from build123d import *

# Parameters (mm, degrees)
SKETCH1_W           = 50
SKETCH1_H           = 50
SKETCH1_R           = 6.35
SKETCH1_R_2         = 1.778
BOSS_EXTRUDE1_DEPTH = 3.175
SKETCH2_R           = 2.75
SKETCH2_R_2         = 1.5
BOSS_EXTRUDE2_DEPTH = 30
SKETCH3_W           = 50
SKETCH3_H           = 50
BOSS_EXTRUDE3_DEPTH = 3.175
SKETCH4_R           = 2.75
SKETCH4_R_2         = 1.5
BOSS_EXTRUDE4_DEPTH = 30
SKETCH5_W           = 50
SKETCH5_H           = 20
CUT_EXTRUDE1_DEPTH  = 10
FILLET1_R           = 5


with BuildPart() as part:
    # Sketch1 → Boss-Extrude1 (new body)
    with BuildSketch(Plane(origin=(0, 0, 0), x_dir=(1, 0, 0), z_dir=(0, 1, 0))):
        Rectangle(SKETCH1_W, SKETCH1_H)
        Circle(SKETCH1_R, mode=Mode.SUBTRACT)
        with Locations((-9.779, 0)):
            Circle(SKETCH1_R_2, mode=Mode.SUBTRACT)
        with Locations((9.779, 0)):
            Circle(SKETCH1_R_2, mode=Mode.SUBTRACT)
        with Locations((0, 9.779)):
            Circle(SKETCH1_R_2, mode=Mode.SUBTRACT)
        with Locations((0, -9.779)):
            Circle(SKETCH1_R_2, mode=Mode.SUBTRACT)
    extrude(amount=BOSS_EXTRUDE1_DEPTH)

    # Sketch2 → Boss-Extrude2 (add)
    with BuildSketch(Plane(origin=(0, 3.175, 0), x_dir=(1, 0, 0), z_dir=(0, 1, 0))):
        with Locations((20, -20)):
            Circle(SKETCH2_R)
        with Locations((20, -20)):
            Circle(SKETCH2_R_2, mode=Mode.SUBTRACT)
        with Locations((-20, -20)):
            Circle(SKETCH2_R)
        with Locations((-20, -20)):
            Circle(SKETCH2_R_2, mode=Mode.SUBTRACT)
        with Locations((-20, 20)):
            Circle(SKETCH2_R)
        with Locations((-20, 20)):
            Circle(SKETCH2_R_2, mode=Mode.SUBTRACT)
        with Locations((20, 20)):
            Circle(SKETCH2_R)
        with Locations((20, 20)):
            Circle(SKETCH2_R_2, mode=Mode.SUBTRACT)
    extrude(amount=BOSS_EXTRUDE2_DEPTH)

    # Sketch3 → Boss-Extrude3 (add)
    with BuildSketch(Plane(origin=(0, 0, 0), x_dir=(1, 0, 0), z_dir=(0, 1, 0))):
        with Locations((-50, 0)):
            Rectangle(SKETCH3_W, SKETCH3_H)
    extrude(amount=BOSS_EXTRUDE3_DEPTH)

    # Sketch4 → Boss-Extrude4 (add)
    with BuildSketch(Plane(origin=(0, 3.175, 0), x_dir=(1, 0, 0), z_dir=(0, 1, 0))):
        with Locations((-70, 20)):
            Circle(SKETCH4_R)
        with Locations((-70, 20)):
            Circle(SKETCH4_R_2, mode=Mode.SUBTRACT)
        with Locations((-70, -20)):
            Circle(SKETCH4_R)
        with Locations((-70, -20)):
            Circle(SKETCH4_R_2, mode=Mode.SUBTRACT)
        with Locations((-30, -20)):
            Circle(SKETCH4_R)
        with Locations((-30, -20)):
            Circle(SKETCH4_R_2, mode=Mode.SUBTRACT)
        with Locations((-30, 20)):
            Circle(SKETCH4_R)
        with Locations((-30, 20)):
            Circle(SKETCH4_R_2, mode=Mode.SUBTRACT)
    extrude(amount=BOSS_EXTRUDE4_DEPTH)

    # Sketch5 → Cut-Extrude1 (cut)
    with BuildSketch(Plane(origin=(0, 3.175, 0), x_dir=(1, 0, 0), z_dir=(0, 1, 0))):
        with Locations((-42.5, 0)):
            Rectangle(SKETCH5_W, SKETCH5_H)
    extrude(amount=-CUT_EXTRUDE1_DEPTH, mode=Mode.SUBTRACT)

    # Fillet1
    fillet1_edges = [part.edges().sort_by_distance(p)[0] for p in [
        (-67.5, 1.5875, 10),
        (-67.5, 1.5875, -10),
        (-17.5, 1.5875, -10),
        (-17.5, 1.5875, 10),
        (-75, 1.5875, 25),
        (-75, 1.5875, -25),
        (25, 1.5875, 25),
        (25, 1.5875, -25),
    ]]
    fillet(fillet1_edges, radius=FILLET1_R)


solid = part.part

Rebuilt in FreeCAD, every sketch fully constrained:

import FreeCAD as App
import Part
import Sketcher
from FreeCAD import Vector
Q = App.Units.Quantity


def edges_at(feature, points):
    """Names of the edges that pass closest to the given points."""
    edges = feature.Shape.Edges
    near = lambda p: min(range(len(edges)), key=lambda i: edges[i].distToShape(Part.Vertex(*p))[0])
    return sorted({f"Edge{near(p) + 1}" for p in points})


def add_polygon(sketch, points):
    """Adds a closed chain of lines whose ends are joined by coincident constraints."""
    first, n = sketch.GeometryCount, len(points)
    for a, b in zip(points, points[1:] + points[:1]):
        sketch.addGeometry(Part.LineSegment(App.Vector(*a, 0), App.Vector(*b, 0)), False)
    for i in range(n):
        sketch.addConstraint(Sketcher.Constraint("Coincident", first + i, 2, first + (i + 1) % n, 1))

doc = App.newDocument("Part")
body = doc.addObject("PartDesign::Body", "Body")

# Sketch on XZ plane
sketch1 = body.newObject("Sketcher::SketchObject", "Sketch")
sketch1.AttachmentSupport = (doc.getObject("XZ_Plane"), [""])
sketch1.MapMode = "FlatFace"
add_polygon(sketch1, [(-25, -25), (-25, 25), (25, 25), (25, -25)])  # lines 0-3
sketch1.addGeometry(Part.Circle(Vector(0, 9.8, 0), Vector(0, 0, 1), 1.8), False)  # 4
sketch1.addGeometry(Part.Circle(Vector(-9.8, 0, 0), Vector(0, 0, 1), 1.8), False)  # 5
sketch1.addGeometry(Part.Circle(Vector(0, 0, 0), Vector(0, 0, 1), 6.3), False)  # 6
sketch1.addGeometry(Part.Circle(Vector(9.8, 0, 0), Vector(0, 0, 1), 1.8), False)  # 7
sketch1.addGeometry(Part.Circle(Vector(0, -9.8, 0), Vector(0, 0, 1), 1.8), False)  # 8
sketch1.addConstraint([
    Sketcher.Constraint("Vertical", 0),
    Sketcher.Constraint("Horizontal", 1),
    Sketcher.Constraint("Vertical", 2),
    Sketcher.Constraint("Horizontal", 3),
    Sketcher.Constraint("Coincident", 6, 3, -1, 1),
    Sketcher.Constraint("Equal", 4, 5),
    Sketcher.Constraint("Equal", 5, 7),
    Sketcher.Constraint("Equal", 7, 8),
    Sketcher.Constraint("Symmetric", 5, 3, 7, 3, -1, 1),
    Sketcher.Constraint("Symmetric", 4, 3, 8, 3, -1, 1),
    Sketcher.Constraint("Symmetric", 0, 2, 2, 2, -1, 1),
    Sketcher.Constraint("PointOnObject", 4, 3, -2),
    Sketcher.Constraint("PointOnObject", 5, 3, -1),
    Sketcher.Constraint("Equal", 3, 0),
    Sketcher.Constraint("Diameter", 6, Q("12.7 mm")),
    Sketcher.Constraint("DistanceX", 1, 1, 1, 2, Q("50 mm")),
    Sketcher.Constraint("Diameter", 4, Q("3.556 mm")),
    Sketcher.Constraint("DistanceY", -1, 1, 4, 3, Q("9.779 mm")),
    Sketcher.Constraint("DistanceX", 5, 3, -1, 1, Q("9.779 mm")),
])
pad1 = body.newObject("PartDesign::Pad", "Pad")
pad1.Profile = sketch1
pad1.Length = 3.175
pad1.Reversed = True

# Sketch on XZ plane
sketch2 = body.newObject("Sketcher::SketchObject", "Sketch001")
sketch2.AttachmentSupport = (doc.getObject("XZ_Plane"), [""])
sketch2.MapMode = "FlatFace"
sketch2.AttachmentOffset = App.Placement(Vector(0, 0, -3.175), App.Rotation())
sketch2.addGeometry([
    Part.Circle(Vector(20, 20, 0), Vector(0, 0, 1), 2.8),  # 0
    Part.Circle(Vector(20, 20, 0), Vector(0, 0, 1), 1.5),  # 1
    Part.Circle(Vector(-20, 20, 0), Vector(0, 0, 1), 2.8),  # 2
    Part.Circle(Vector(-20, 20, 0), Vector(0, 0, 1), 1.5),  # 3
    Part.Circle(Vector(-20, -20, 0), Vector(0, 0, 1), 2.8),  # 4
    Part.Circle(Vector(-20, -20, 0), Vector(0, 0, 1), 1.5),  # 5
    Part.Circle(Vector(20, -20, 0), Vector(0, 0, 1), 2.8),  # 6
    Part.Circle(Vector(20, -20, 0), Vector(0, 0, 1), 1.5),  # 7
], False)
sketch2.addConstraint([
    Sketcher.Constraint("Coincident", 1, 3, 0, 3),
    Sketcher.Constraint("Coincident", 3, 3, 2, 3),
    Sketcher.Constraint("Coincident", 5, 3, 4, 3),
    Sketcher.Constraint("Coincident", 7, 3, 6, 3),
    Sketcher.Constraint("Equal", 0, 2),
    Sketcher.Constraint("Equal", 1, 3),
    Sketcher.Constraint("Equal", 2, 4),
    Sketcher.Constraint("Equal", 3, 5),
    Sketcher.Constraint("Equal", 4, 6),
    Sketcher.Constraint("Equal", 5, 7),
    Sketcher.Constraint("Symmetric", 0, 3, 4, 3, -1, 1),
    Sketcher.Constraint("Symmetric", 2, 3, 6, 3, -1, 1),
    Sketcher.Constraint("Symmetric", 0, 3, 2, 3, -2),
    Sketcher.Constraint("Diameter", 1, Q("3 mm")),
    Sketcher.Constraint("Diameter", 0, Q("5.5 mm")),
    Sketcher.Constraint("DistanceX", -1, 1, 0, 3, Q("20 mm")),
    Sketcher.Constraint("DistanceY", -1, 1, 0, 3, Q("20 mm")),
])
pad2 = body.newObject("PartDesign::Pad", "Pad001")
pad2.Profile = sketch2
pad2.Length = 30
pad2.Reversed = True

# Sketch on XZ plane
sketch3 = body.newObject("Sketcher::SketchObject", "Sketch002")
sketch3.AttachmentSupport = (doc.getObject("XZ_Plane"), [""])
sketch3.MapMode = "FlatFace"
add_polygon(sketch3, [(-75, -25), (-75, 25), (-25, 25), (-25, -25)])  # lines 0-3
sketch3.addConstraint([
    Sketcher.Constraint("Vertical", 0),
    Sketcher.Constraint("Horizontal", 1),
    Sketcher.Constraint("Vertical", 2),
    Sketcher.Constraint("Horizontal", 3),
    Sketcher.Constraint("Equal", 3, 0),
    Sketcher.Constraint("DistanceX", 1, 1, 1, 2, Q("50 mm")),
    Sketcher.Constraint("DistanceX", 0, 2, -1, 1, Q("75 mm")),
    Sketcher.Constraint("DistanceY", -1, 1, 0, 2, Q("25 mm")),
])
pad3 = body.newObject("PartDesign::Pad", "Pad002")
pad3.Profile = sketch3
pad3.Length = 3.175
pad3.Reversed = True

# Sketch on XZ plane
sketch4 = body.newObject("Sketcher::SketchObject", "Sketch003")
sketch4.AttachmentSupport = (doc.getObject("XZ_Plane"), [""])
sketch4.MapMode = "FlatFace"
sketch4.AttachmentOffset = App.Placement(Vector(0, 0, -3.175), App.Rotation())
sketch4.addGeometry([
    Part.Circle(Vector(-70, -20, 0), Vector(0, 0, 1), 2.8),  # 0
    Part.Circle(Vector(-70, -20, 0), Vector(0, 0, 1), 1.5),  # 1
    Part.Circle(Vector(-70, 20, 0), Vector(0, 0, 1), 2.8),  # 2
    Part.Circle(Vector(-70, 20, 0), Vector(0, 0, 1), 1.5),  # 3
    Part.Circle(Vector(-30, 20, 0), Vector(0, 0, 1), 2.8),  # 4
    Part.Circle(Vector(-30, 20, 0), Vector(0, 0, 1), 1.5),  # 5
    Part.Circle(Vector(-30, -20, 0), Vector(0, 0, 1), 2.8),  # 6
    Part.Circle(Vector(-30, -20, 0), Vector(0, 0, 1), 1.5),  # 7
], False)
sketch4.addConstraint([
    Sketcher.Constraint("Coincident", 1, 3, 0, 3),
    Sketcher.Constraint("Coincident", 3, 3, 2, 3),
    Sketcher.Constraint("Coincident", 5, 3, 4, 3),
    Sketcher.Constraint("Coincident", 7, 3, 6, 3),
    Sketcher.Constraint("Equal", 0, 2),
    Sketcher.Constraint("Equal", 1, 3),
    Sketcher.Constraint("Equal", 2, 4),
    Sketcher.Constraint("Equal", 3, 5),
    Sketcher.Constraint("Equal", 4, 6),
    Sketcher.Constraint("Equal", 5, 7),
    Sketcher.Constraint("Symmetric", 0, 3, 2, 3, -1),
    Sketcher.Constraint("Symmetric", 4, 3, 6, 3, -1),
    Sketcher.Constraint("Horizontal", 3, 3, 4, 3),
    Sketcher.Constraint("Diameter", 1, Q("3 mm")),
    Sketcher.Constraint("Diameter", 0, Q("5.5 mm")),
    Sketcher.Constraint("DistanceX", 0, 3, -1, 1, Q("70 mm")),
    Sketcher.Constraint("DistanceY", 0, 3, -1, 1, Q("20 mm")),
    Sketcher.Constraint("DistanceX", 4, 3, -1, 1, Q("30 mm")),
])
pad4 = body.newObject("PartDesign::Pad", "Pad003")
pad4.Profile = sketch4
pad4.Length = 30
pad4.Reversed = True

# Sketch on XZ plane
sketch5 = body.newObject("Sketcher::SketchObject", "Sketch004")
sketch5.AttachmentSupport = (doc.getObject("XZ_Plane"), [""])
sketch5.MapMode = "FlatFace"
sketch5.AttachmentOffset = App.Placement(Vector(0, 0, -3.175), App.Rotation())
add_polygon(sketch5, [(-68, -10), (-68, 10), (-18, 10), (-18, -10)])  # lines 0-3
sketch5.addConstraint([
    Sketcher.Constraint("Vertical", 0),
    Sketcher.Constraint("Horizontal", 1),
    Sketcher.Constraint("Vertical", 2),
    Sketcher.Constraint("Horizontal", 3),
    Sketcher.Constraint("DistanceX", 1, 1, 1, 2, Q("50 mm")),
    Sketcher.Constraint("DistanceY", 0, 1, 0, 2, Q("20 mm")),
    Sketcher.Constraint("DistanceY", -1, 1, 0, 2, Q("10 mm")),
    Sketcher.Constraint("DistanceX", 0, 2, -1, 1, Q("67.5 mm")),
])
pocket1 = body.newObject("PartDesign::Pocket", "Pocket")
pocket1.Profile = sketch5
pocket1.Length = 10
pocket1.Reversed = True
doc.recompute()

fillet = body.newObject("PartDesign::Fillet", "Fillet")
fillet.Base = (pocket1, edges_at(pocket1, [
    (-67.5, 1.587, 10),
    (-67.5, 1.587, -10),
    (-17.5, 1.587, -10),
    (-17.5, 1.587, 10),
    (-75, 1.587, 25),
    (-75, 1.587, -25),
    (25, 1.587, 25),
    (25, 1.587, -25),
]))
fillet.Radius = 5

doc.recompute()
